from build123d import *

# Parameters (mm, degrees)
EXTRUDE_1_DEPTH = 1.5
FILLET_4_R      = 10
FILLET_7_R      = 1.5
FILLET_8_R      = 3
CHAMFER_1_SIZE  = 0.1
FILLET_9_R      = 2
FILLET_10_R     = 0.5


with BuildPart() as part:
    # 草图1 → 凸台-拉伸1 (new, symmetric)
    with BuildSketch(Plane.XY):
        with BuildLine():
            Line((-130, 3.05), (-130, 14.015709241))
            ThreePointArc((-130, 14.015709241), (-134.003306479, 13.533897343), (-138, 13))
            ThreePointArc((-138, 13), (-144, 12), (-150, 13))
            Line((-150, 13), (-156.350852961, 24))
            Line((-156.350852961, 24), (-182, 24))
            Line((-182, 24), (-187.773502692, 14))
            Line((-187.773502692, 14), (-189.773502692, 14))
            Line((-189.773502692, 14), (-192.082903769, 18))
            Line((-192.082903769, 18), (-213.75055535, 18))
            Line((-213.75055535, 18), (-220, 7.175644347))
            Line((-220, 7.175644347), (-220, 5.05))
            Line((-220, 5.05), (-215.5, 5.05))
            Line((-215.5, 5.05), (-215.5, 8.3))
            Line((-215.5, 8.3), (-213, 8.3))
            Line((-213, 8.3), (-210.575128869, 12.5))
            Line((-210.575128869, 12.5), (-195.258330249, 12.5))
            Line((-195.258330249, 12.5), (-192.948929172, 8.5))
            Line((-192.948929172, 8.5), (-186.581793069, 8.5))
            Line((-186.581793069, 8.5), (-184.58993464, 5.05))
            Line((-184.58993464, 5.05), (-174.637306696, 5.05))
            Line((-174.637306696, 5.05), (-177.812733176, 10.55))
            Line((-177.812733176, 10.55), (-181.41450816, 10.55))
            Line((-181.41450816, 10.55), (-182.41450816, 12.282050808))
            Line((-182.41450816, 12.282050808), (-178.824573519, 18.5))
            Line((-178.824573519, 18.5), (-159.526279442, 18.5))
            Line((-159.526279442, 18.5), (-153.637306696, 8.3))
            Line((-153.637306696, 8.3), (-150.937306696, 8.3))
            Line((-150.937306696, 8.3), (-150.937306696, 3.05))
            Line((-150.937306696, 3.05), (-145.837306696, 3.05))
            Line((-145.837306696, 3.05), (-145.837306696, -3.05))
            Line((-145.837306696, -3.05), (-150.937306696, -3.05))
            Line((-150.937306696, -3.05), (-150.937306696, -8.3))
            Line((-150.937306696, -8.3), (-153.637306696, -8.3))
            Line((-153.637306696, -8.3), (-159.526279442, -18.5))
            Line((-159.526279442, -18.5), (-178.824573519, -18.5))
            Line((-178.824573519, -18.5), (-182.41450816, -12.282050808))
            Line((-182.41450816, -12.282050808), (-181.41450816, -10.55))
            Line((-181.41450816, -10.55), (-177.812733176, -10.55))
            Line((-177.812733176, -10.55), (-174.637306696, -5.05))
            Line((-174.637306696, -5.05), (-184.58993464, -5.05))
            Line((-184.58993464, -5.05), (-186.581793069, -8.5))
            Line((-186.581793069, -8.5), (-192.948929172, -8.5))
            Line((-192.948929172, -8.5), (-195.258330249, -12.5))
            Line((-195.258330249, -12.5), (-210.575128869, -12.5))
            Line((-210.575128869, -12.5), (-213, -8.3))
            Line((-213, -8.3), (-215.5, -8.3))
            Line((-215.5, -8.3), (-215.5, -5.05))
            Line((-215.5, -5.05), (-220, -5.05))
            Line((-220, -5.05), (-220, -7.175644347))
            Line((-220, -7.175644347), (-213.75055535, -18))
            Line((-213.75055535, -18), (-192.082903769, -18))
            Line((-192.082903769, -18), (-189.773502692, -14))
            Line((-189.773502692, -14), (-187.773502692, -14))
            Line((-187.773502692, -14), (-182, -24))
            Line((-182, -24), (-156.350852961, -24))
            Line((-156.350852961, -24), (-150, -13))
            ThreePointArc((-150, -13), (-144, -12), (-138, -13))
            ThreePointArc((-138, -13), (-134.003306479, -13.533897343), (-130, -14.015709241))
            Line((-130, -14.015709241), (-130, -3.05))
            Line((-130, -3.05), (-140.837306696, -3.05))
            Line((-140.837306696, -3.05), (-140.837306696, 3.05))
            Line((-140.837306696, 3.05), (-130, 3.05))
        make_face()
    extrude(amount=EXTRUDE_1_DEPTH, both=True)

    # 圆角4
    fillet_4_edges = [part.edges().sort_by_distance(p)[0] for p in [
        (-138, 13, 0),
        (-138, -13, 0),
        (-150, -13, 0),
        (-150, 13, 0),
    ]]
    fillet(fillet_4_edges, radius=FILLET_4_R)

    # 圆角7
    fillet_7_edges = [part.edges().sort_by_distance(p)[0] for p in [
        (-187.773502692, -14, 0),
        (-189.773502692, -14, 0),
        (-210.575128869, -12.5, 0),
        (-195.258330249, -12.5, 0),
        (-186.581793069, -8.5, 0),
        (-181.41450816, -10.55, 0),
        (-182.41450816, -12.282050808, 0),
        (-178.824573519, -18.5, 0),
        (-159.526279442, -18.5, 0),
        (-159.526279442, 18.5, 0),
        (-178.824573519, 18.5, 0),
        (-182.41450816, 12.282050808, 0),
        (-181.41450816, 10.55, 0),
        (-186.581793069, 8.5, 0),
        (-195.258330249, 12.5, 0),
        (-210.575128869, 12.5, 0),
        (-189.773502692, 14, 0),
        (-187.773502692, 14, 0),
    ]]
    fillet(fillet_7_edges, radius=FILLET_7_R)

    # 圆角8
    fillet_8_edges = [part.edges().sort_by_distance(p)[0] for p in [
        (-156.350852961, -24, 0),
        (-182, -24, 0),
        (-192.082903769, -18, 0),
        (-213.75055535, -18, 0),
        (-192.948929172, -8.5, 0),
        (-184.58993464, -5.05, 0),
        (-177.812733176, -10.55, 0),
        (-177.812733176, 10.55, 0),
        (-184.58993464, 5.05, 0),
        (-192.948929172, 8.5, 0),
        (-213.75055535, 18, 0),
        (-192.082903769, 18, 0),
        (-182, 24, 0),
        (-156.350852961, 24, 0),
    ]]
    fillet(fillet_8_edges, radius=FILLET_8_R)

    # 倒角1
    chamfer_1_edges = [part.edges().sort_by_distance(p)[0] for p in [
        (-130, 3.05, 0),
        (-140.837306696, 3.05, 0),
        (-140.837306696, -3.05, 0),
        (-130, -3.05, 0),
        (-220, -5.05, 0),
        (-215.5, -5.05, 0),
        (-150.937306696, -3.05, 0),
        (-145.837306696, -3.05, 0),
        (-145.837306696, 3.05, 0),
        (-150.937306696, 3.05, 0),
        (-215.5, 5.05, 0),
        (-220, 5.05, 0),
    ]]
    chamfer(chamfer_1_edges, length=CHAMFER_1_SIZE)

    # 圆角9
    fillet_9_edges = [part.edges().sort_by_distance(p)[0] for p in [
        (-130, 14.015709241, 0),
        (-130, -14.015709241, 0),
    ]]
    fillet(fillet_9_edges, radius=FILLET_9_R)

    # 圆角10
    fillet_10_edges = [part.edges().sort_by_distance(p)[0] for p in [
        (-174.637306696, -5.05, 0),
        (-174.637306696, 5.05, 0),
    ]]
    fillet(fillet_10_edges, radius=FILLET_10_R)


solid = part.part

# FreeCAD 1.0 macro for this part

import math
import FreeCAD as App
import Part
import Sketcher
from FreeCAD import Vector
Q = App.Units.Quantity


def edges_at(feature, points):
    """Names of the edges that pass closest to the given points."""
    edges = feature.Shape.Edges
    near = lambda p: min(range(len(edges)), key=lambda i: edges[i].distToShape(Part.Vertex(*p))[0])
    return sorted({f"Edge{near(p) + 1}" for p in points})

doc = App.newDocument("Part")
body = doc.addObject("PartDesign::Body", "Body")

# Sketch on XY plane
sketch1 = body.newObject("Sketcher::SketchObject", "Sketch")
sketch1.AttachmentSupport = (doc.getObject("XY_Plane"), [""])
sketch1.MapMode = "FlatFace"
sketch1.addGeometry([
    Part.LineSegment(Vector(-130, 3.05, 0), Vector(-130, 14.015709, 0)),  # 0
    Part.ArcOfCircle(Part.Circle(Vector(-95, -293.66667, 0), Vector(0, 0, 1), 309.66667), math.radians(96.489709), math.radians(97.981826)),  # 1
    Part.ArcOfCircle(Part.Circle(Vector(-144, 30.5, 0), Vector(0, 0, 1), 18.5), math.radians(-108.924644), math.radians(-71.075356)),  # 2
    Part.LineSegment(Vector(-150, 13, 0), Vector(-156.350853, 24, 0)),  # 3
    Part.LineSegment(Vector(-156.350853, 24, 0), Vector(-182, 24, 0)),  # 4
    Part.LineSegment(Vector(-182, 24, 0), Vector(-187.773503, 14, 0)),  # 5
    Part.LineSegment(Vector(-187.773503, 14, 0), Vector(-189.773503, 14, 0)),  # 6
    Part.LineSegment(Vector(-189.773503, 14, 0), Vector(-192.082904, 18, 0)),  # 7
    Part.LineSegment(Vector(-192.082904, 18, 0), Vector(-213.750555, 18, 0)),  # 8
    Part.LineSegment(Vector(-213.750555, 18, 0), Vector(-220, 7.175644, 0)),  # 9
    Part.LineSegment(Vector(-220, 7.175644, 0), Vector(-220, 5.05, 0)),  # 10
    Part.LineSegment(Vector(-220, 5.05, 0), Vector(-215.5, 5.05, 0)),  # 11
    Part.LineSegment(Vector(-215.5, 5.05, 0), Vector(-215.5, 8.3, 0)),  # 12
    Part.LineSegment(Vector(-215.5, 8.3, 0), Vector(-213, 8.3, 0)),  # 13
    Part.LineSegment(Vector(-213, 8.3, 0), Vector(-210.575129, 12.5, 0)),  # 14
    Part.LineSegment(Vector(-210.575129, 12.5, 0), Vector(-195.25833, 12.5, 0)),  # 15
    Part.LineSegment(Vector(-195.25833, 12.5, 0), Vector(-192.948929, 8.5, 0)),  # 16
    Part.LineSegment(Vector(-192.948929, 8.5, 0), Vector(-186.581793, 8.5, 0)),  # 17
    Part.LineSegment(Vector(-186.581793, 8.5, 0), Vector(-184.589935, 5.05, 0)),  # 18
    Part.LineSegment(Vector(-184.589935, 5.05, 0), Vector(-174.637307, 5.05, 0)),  # 19
    Part.LineSegment(Vector(-174.637307, 5.05, 0), Vector(-177.812733, 10.55, 0)),  # 20
    Part.LineSegment(Vector(-177.812733, 10.55, 0), Vector(-181.414508, 10.55, 0)),  # 21
    Part.LineSegment(Vector(-181.414508, 10.55, 0), Vector(-182.414508, 12.282051, 0)),  # 22
    Part.LineSegment(Vector(-182.414508, 12.282051, 0), Vector(-178.824574, 18.5, 0)),  # 23
    Part.LineSegment(Vector(-178.824574, 18.5, 0), Vector(-159.526279, 18.5, 0)),  # 24
    Part.LineSegment(Vector(-159.526279, 18.5, 0), Vector(-153.637307, 8.3, 0)),  # 25
    Part.LineSegment(Vector(-153.637307, 8.3, 0), Vector(-150.937307, 8.3, 0)),  # 26
    Part.LineSegment(Vector(-150.937307, 8.3, 0), Vector(-150.937307, 3.05, 0)),  # 27
    Part.LineSegment(Vector(-150.937307, 3.05, 0), Vector(-145.837307, 3.05, 0)),  # 28
    Part.LineSegment(Vector(-145.837307, 3.05, 0), Vector(-145.837307, -3.05, 0)),  # 29
    Part.LineSegment(Vector(-145.837307, -3.05, 0), Vector(-150.937307, -3.05, 0)),  # 30
    Part.LineSegment(Vector(-150.937307, -3.05, 0), Vector(-150.937307, -8.3, 0)),  # 31
    Part.LineSegment(Vector(-150.937307, -8.3, 0), Vector(-153.637307, -8.3, 0)),  # 32
    Part.LineSegment(Vector(-153.637307, -8.3, 0), Vector(-159.526279, -18.5, 0)),  # 33
    Part.LineSegment(Vector(-159.526279, -18.5, 0), Vector(-178.824574, -18.5, 0)),  # 34
    Part.LineSegment(Vector(-178.824574, -18.5, 0), Vector(-182.414508, -12.282051, 0)),  # 35
    Part.LineSegment(Vector(-182.414508, -12.282051, 0), Vector(-181.414508, -10.55, 0)),  # 36
    Part.LineSegment(Vector(-181.414508, -10.55, 0), Vector(-177.812733, -10.55, 0)),  # 37
    Part.LineSegment(Vector(-177.812733, -10.55, 0), Vector(-174.637307, -5.05, 0)),  # 38
    Part.LineSegment(Vector(-174.637307, -5.05, 0), Vector(-184.589935, -5.05, 0)),  # 39
    Part.LineSegment(Vector(-184.589935, -5.05, 0), Vector(-186.581793, -8.5, 0)),  # 40
    Part.LineSegment(Vector(-186.581793, -8.5, 0), Vector(-192.948929, -8.5, 0)),  # 41
    Part.LineSegment(Vector(-192.948929, -8.5, 0), Vector(-195.25833, -12.5, 0)),  # 42
    Part.LineSegment(Vector(-195.25833, -12.5, 0), Vector(-210.575129, -12.5, 0)),  # 43
    Part.LineSegment(Vector(-210.575129, -12.5, 0), Vector(-213, -8.3, 0)),  # 44
    Part.LineSegment(Vector(-213, -8.3, 0), Vector(-215.5, -8.3, 0)),  # 45
    Part.LineSegment(Vector(-215.5, -8.3, 0), Vector(-215.5, -5.05, 0)),  # 46
    Part.LineSegment(Vector(-215.5, -5.05, 0), Vector(-220, -5.05, 0)),  # 47
    Part.LineSegment(Vector(-220, -5.05, 0), Vector(-220, -7.175644, 0)),  # 48
    Part.LineSegment(Vector(-220, -7.175644, 0), Vector(-213.750555, -18, 0)),  # 49
    Part.LineSegment(Vector(-213.750555, -18, 0), Vector(-192.082904, -18, 0)),  # 50
    Part.LineSegment(Vector(-192.082904, -18, 0), Vector(-189.773503, -14, 0)),  # 51
    Part.LineSegment(Vector(-189.773503, -14, 0), Vector(-187.773503, -14, 0)),  # 52
    Part.LineSegment(Vector(-187.773503, -14, 0), Vector(-182, -24, 0)),  # 53
    Part.LineSegment(Vector(-182, -24, 0), Vector(-156.350853, -24, 0)),  # 54
    Part.LineSegment(Vector(-156.350853, -24, 0), Vector(-150, -13, 0)),  # 55
    Part.ArcOfCircle(Part.Circle(Vector(-144, -30.5, 0), Vector(0, 0, 1), 18.5), math.radians(71.075356), math.radians(108.924644)),  # 56
    Part.ArcOfCircle(Part.Circle(Vector(-95, 293.66667, 0), Vector(0, 0, 1), 309.66667), math.radians(-97.981826), math.radians(-96.489709)),  # 57
    Part.LineSegment(Vector(-130, -14.015709, 0), Vector(-130, -3.05, 0)),  # 58
    Part.LineSegment(Vector(-130, -3.05, 0), Vector(-140.837307, -3.05, 0)),  # 59
    Part.LineSegment(Vector(-140.837307, -3.05, 0), Vector(-140.837307, 3.05, 0)),  # 60
    Part.LineSegment(Vector(-140.837307, 3.05, 0), Vector(-130, 3.05, 0)),  # 61
], False)
sketch1.addConstraint([
    Sketcher.Constraint("Coincident", 0, 2, 1, 1),
    Sketcher.Constraint("Coincident", 1, 2, 2, 2),
    Sketcher.Constraint("Coincident", 2, 1, 3, 1),
    Sketcher.Constraint("Coincident", 3, 2, 4, 1),
    Sketcher.Constraint("Coincident", 4, 2, 5, 1),
    Sketcher.Constraint("Coincident", 5, 2, 6, 1),
    Sketcher.Constraint("Coincident", 6, 2, 7, 1),
    Sketcher.Constraint("Coincident", 7, 2, 8, 1),
    Sketcher.Constraint("Coincident", 8, 2, 9, 1),
    Sketcher.Constraint("Coincident", 9, 2, 10, 1),
    Sketcher.Constraint("Coincident", 10, 2, 11, 1),
    Sketcher.Constraint("Coincident", 11, 2, 12, 1),
    Sketcher.Constraint("Coincident", 12, 2, 13, 1),
    Sketcher.Constraint("Coincident", 13, 2, 14, 1),
    Sketcher.Constraint("Coincident", 14, 2, 15, 1),
    Sketcher.Constraint("Coincident", 15, 2, 16, 1),
    Sketcher.Constraint("Coincident", 16, 2, 17, 1),
    Sketcher.Constraint("Coincident", 17, 2, 18, 1),
    Sketcher.Constraint("Coincident", 18, 2, 19, 1),
    Sketcher.Constraint("Coincident", 19, 2, 20, 1),
    Sketcher.Constraint("Coincident", 20, 2, 21, 1),
    Sketcher.Constraint("Coincident", 21, 2, 22, 1),
    Sketcher.Constraint("Coincident", 22, 2, 23, 1),
    Sketcher.Constraint("Coincident", 23, 2, 24, 1),
    Sketcher.Constraint("Coincident", 24, 2, 25, 1),
    Sketcher.Constraint("Coincident", 25, 2, 26, 1),
    Sketcher.Constraint("Coincident", 26, 2, 27, 1),
    Sketcher.Constraint("Coincident", 27, 2, 28, 1),
    Sketcher.Constraint("Coincident", 28, 2, 29, 1),
    Sketcher.Constraint("Coincident", 29, 2, 30, 1),
    Sketcher.Constraint("Coincident", 30, 2, 31, 1),
    Sketcher.Constraint("Coincident", 31, 2, 32, 1),
    Sketcher.Constraint("Coincident", 32, 2, 33, 1),
    Sketcher.Constraint("Coincident", 33, 2, 34, 1),
    Sketcher.Constraint("Coincident", 34, 2, 35, 1),
    Sketcher.Constraint("Coincident", 35, 2, 36, 1),
    Sketcher.Constraint("Coincident", 36, 2, 37, 1),
    Sketcher.Constraint("Coincident", 37, 2, 38, 1),
    Sketcher.Constraint("Coincident", 38, 2, 39, 1),
    Sketcher.Constraint("Coincident", 39, 2, 40, 1),
    Sketcher.Constraint("Coincident", 40, 2, 41, 1),
    Sketcher.Constraint("Coincident", 41, 2, 42, 1),
    Sketcher.Constraint("Coincident", 42, 2, 43, 1),
    Sketcher.Constraint("Coincident", 43, 2, 44, 1),
    Sketcher.Constraint("Coincident", 44, 2, 45, 1),
    Sketcher.Constraint("Coincident", 45, 2, 46, 1),
    Sketcher.Constraint("Coincident", 46, 2, 47, 1),
    Sketcher.Constraint("Coincident", 47, 2, 48, 1),
    Sketcher.Constraint("Coincident", 48, 2, 49, 1),
    Sketcher.Constraint("Coincident", 49, 2, 50, 1),
    Sketcher.Constraint("Coincident", 50, 2, 51, 1),
    Sketcher.Constraint("Coincident", 51, 2, 52, 1),
    Sketcher.Constraint("Coincident", 52, 2, 53, 1),
    Sketcher.Constraint("Coincident", 53, 2, 54, 1),
    Sketcher.Constraint("Coincident", 54, 2, 55, 1),
    Sketcher.Constraint("Coincident", 55, 2, 56, 2),
    Sketcher.Constraint("Coincident", 56, 1, 57, 1),
    Sketcher.Constraint("Coincident", 57, 2, 58, 1),
    Sketcher.Constraint("Coincident", 58, 2, 59, 1),
    Sketcher.Constraint("Coincident", 59, 2, 60, 1),
    Sketcher.Constraint("Coincident", 60, 2, 61, 1),
    Sketcher.Constraint("Coincident", 61, 2, 0, 1),
    Sketcher.Constraint("Vertical", 0),
    Sketcher.Constraint("Horizontal", 4),
    Sketcher.Constraint("Horizontal", 6),
    Sketcher.Constraint("Horizontal", 8),
    Sketcher.Constraint("Vertical", 10),
    Sketcher.Constraint("Horizontal", 11),
    Sketcher.Constraint("Vertical", 12),
    Sketcher.Constraint("Horizontal", 13),
    Sketcher.Constraint("Horizontal", 15),
    Sketcher.Constraint("Horizontal", 17),
    Sketcher.Constraint("Horizontal", 19),
    Sketcher.Constraint("Horizontal", 21),
    Sketcher.Constraint("Horizontal", 24),
    Sketcher.Constraint("Horizontal", 26),
    Sketcher.Constraint("Vertical", 27),
    Sketcher.Constraint("Horizontal", 28),
    Sketcher.Constraint("Vertical", 29),
    Sketcher.Constraint("Horizontal", 30),
    Sketcher.Constraint("Vertical", 31),
    Sketcher.Constraint("Horizontal", 32),
    Sketcher.Constraint("Horizontal", 34),
    Sketcher.Constraint("Horizontal", 37),
    Sketcher.Constraint("Horizontal", 39),
    Sketcher.Constraint("Horizontal", 41),
    Sketcher.Constraint("Horizontal", 43),
    Sketcher.Constraint("Horizontal", 45),
    Sketcher.Constraint("Vertical", 46),
    Sketcher.Constraint("Horizontal", 47),
    Sketcher.Constraint("Vertical", 48),
    Sketcher.Constraint("Horizontal", 50),
    Sketcher.Constraint("Horizontal", 52),
    Sketcher.Constraint("Horizontal", 54),
    Sketcher.Constraint("Vertical", 58),
    Sketcher.Constraint("Horizontal", 59),
    Sketcher.Constraint("Vertical", 60),
    Sketcher.Constraint("Horizontal", 61),
    Sketcher.Constraint("Equal", 2, 56),
    Sketcher.Constraint("Equal", 1, 57),
    Sketcher.Constraint("Symmetric", 2, 3, 56, 3, -1),
    Sketcher.Constraint("Symmetric", 1, 3, 57, 3, -1),
    Sketcher.Constraint("Symmetric", 27, 2, 30, 2, -1),
    Sketcher.Constraint("Symmetric", 25, 2, 32, 2, -1),
    Sketcher.Constraint("Symmetric", 24, 2, 33, 2, -1),
    Sketcher.Constraint("Symmetric", 22, 2, 35, 2, -1),
    Sketcher.Constraint("Symmetric", 21, 2, 36, 2, -1),
    Sketcher.Constraint("Symmetric", 19, 2, 38, 2, -1),
    Sketcher.Constraint("Symmetric", 17, 2, 40, 2, -1),
    Sketcher.Constraint("Symmetric", 15, 2, 42, 2, -1),
    Sketcher.Constraint("Symmetric", 13, 2, 44, 2, -1),
    Sketcher.Constraint("Symmetric", 11, 2, 46, 2, -1),
    Sketcher.Constraint("Symmetric", 9, 2, 48, 2, -1),
    Sketcher.Constraint("Symmetric", 8, 2, 49, 2, -1),
    Sketcher.Constraint("Symmetric", 6, 2, 51, 2, -1),
    Sketcher.Constraint("Symmetric", 4, 2, 53, 2, -1),
    Sketcher.Constraint("Symmetric", 58, 2, 61, 2, -1),
    Sketcher.Constraint("Parallel", 3, 7),
    Sketcher.Constraint("Parallel", 5, 9),
    Sketcher.Constraint("Parallel", 9, 14),
    Sketcher.Constraint("Parallel", 7, 16),
    Sketcher.Constraint("Parallel", 16, 18),
    Sketcher.Constraint("Parallel", 18, 20),
    Sketcher.Constraint("Parallel", 20, 22),
    Sketcher.Constraint("Parallel", 14, 23),
    Sketcher.Constraint("Parallel", 22, 25),
    Sketcher.Constraint("Parallel", 23, 33),
    Sketcher.Constraint("Parallel", 25, 35),
    Sketcher.Constraint("Parallel", 36, 38),
    Sketcher.Constraint("Parallel", 38, 40),
    Sketcher.Constraint("Parallel", 40, 42),
    Sketcher.Constraint("Parallel", 35, 44),
    Sketcher.Constraint("Parallel", 42, 51),
    Sketcher.Constraint("Parallel", 49, 53),
    Sketcher.Constraint("Parallel", 51, 55),
    Sketcher.Constraint("Horizontal", 1, 2, 2, 1),
    Sketcher.Constraint("Horizontal", 11, 2, 18, 2),
    Sketcher.Constraint("Horizontal", 13, 2, 25, 2),
    Sketcher.Constraint("Horizontal", 55, 2, 56, 1),
    Sketcher.Constraint("Horizontal", 30, 2, 58, 2),
    Sketcher.Constraint("Equal", 7, 16),
    Sketcher.Constraint("Radius", 2, 18.5),
    Sketcher.Constraint("DistanceX", 6, 2, 6, 1, 2.0),
    Sketcher.Constraint("Angle", 3, Q("120 deg")),
    Sketcher.Constraint("Distance", 22, 2.0),
    Sketcher.Constraint("DistanceX", 11, 1, 11, 2, 4.5),
    Sketcher.Constraint("DistanceX", 13, 1, 13, 2, 2.5),
    Sketcher.Constraint("DistanceX", 26, 1, 26, 2, 2.7),
    Sketcher.Constraint("DistanceX", 28, 1, 28, 2, 5.1),
    Sketcher.Constraint("DistanceY", 29, 2, 29, 1, 6.1),
    Sketcher.Constraint("DistanceX", 1, 3, -1, 1, 95.0),
    Sketcher.Constraint("DistanceX", 2, 3, -1, 1, 144.0),
    Sketcher.Constraint("DistanceX", 0, 2, -1, 1, 130.0),
    Sketcher.Constraint("DistanceY", -1, 1, 1, 2, 13.0),
    Sketcher.Constraint("DistanceX", 2, 1, -1, 1, 150.0),
    Sketcher.Constraint("DistanceY", -1, 1, 3, 2, 24.0),
    Sketcher.Constraint("DistanceX", 4, 2, -1, 1, 182.0),
    Sketcher.Constraint("DistanceY", -1, 1, 5, 2, 14.0),
    Sketcher.Constraint("DistanceY", -1, 1, 7, 2, 18.0),
    Sketcher.Constraint("DistanceX", 9, 2, -1, 1, 220.0),
    Sketcher.Constraint("DistanceY", 12, 1, 12, 2, 3.25),
    Sketcher.Constraint("DistanceY", 27, 2, 27, 1, 5.25),
    Sketcher.Constraint("DistanceY", -1, 1, 14, 2, 12.5),
    Sketcher.Constraint("DistanceY", -1, 1, 23, 2, 18.5),
    Sketcher.Constraint("DistanceY", -1, 1, 20, 2, 10.55),
    Sketcher.Constraint("Radius", 1, 309.66667),
    Sketcher.Constraint("DistanceX", 15, 1, 15, 2, 15.316799),
    Sketcher.Constraint("DistanceX", 8, 2, 8, 1, 21.667652),
    Sketcher.Constraint("DistanceX", 17, 1, 17, 2, 6.367136),
    Sketcher.Constraint("DistanceX", 19, 1, 19, 2, 9.952628),
    Sketcher.Constraint("DistanceX", 21, 2, 21, 1, 3.601775),
    Sketcher.Constraint("DistanceX", 24, 1, 24, 2, 19.298294),
    Sketcher.Constraint("DistanceX", 59, 2, 59, 1, 10.837307),
])
pad1 = body.newObject("PartDesign::Pad", "Pad")
pad1.Profile = sketch1
pad1.Length = 3
pad1.Midplane = True
doc.recompute()

fillet = body.newObject("PartDesign::Fillet", "Fillet")
fillet.Base = (pad1, edges_at(pad1, [
    (-138, 13, 0),
    (-138, -13, 0),
    (-150, -13, 0),
    (-150, 13, 0),
]))
fillet.Radius = 10
doc.recompute()

fillet2 = body.newObject("PartDesign::Fillet", "Fillet001")
fillet2.Base = (fillet, edges_at(fillet, [
    (-187.774, -14, 0),
    (-189.774, -14, 0),
    (-210.575, -12.5, 0),
    (-195.258, -12.5, 0),
    (-186.582, -8.5, 0),
    (-181.415, -10.55, 0),
    (-182.415, -12.282, 0),
    (-178.825, -18.5, 0),
    (-159.526, -18.5, 0),
    (-159.526, 18.5, 0),
    (-178.825, 18.5, 0),
    (-182.415, 12.282, 0),
    (-181.415, 10.55, 0),
    (-186.582, 8.5, 0),
    (-195.258, 12.5, 0),
    (-210.575, 12.5, 0),
    (-189.774, 14, 0),
    (-187.774, 14, 0),
]))
fillet2.Radius = 1.5
doc.recompute()

fillet3 = body.newObject("PartDesign::Fillet", "Fillet002")
fillet3.Base = (fillet2, edges_at(fillet2, [
    (-156.351, -24, 0),
    (-182, -24, 0),
    (-192.083, -18, 0),
    (-213.751, -18, 0),
    (-192.949, -8.5, 0),
    (-184.59, -5.05, 0),
    (-177.813, -10.55, 0),
    (-177.813, 10.55, 0),
    (-184.59, 5.05, 0),
    (-192.949, 8.5, 0),
    (-213.751, 18, 0),
    (-192.083, 18, 0),
    (-182, 24, 0),
    (-156.351, 24, 0),
]))
fillet3.Radius = 3
doc.recompute()

chamfer = body.newObject("PartDesign::Chamfer", "Chamfer")
chamfer.Base = (fillet3, edges_at(fillet3, [
    (-130, 3.05, 0),
    (-140.837, 3.05, 0),
    (-140.837, -3.05, 0),
    (-130, -3.05, 0),
    (-220, -5.05, 0),
    (-215.5, -5.05, 0),
    (-150.937, -3.05, 0),
    (-145.837, -3.05, 0),
    (-145.837, 3.05, 0),
    (-150.937, 3.05, 0),
    (-215.5, 5.05, 0),
    (-220, 5.05, 0),
]))
chamfer.Size = 0.1
doc.recompute()

fillet4 = body.newObject("PartDesign::Fillet", "Fillet003")
fillet4.Base = (chamfer, edges_at(chamfer, [(-130, 14.016, 0), (-130, -14.016, 0)]))
fillet4.Radius = 2
doc.recompute()

fillet5 = body.newObject("PartDesign::Fillet", "Fillet004")
fillet5.Base = (fillet4, edges_at(fillet4, [(-174.637, -5.05, 0), (-174.637, 5.05, 0)]))
fillet5.Radius = 0.5

doc.recompute()
